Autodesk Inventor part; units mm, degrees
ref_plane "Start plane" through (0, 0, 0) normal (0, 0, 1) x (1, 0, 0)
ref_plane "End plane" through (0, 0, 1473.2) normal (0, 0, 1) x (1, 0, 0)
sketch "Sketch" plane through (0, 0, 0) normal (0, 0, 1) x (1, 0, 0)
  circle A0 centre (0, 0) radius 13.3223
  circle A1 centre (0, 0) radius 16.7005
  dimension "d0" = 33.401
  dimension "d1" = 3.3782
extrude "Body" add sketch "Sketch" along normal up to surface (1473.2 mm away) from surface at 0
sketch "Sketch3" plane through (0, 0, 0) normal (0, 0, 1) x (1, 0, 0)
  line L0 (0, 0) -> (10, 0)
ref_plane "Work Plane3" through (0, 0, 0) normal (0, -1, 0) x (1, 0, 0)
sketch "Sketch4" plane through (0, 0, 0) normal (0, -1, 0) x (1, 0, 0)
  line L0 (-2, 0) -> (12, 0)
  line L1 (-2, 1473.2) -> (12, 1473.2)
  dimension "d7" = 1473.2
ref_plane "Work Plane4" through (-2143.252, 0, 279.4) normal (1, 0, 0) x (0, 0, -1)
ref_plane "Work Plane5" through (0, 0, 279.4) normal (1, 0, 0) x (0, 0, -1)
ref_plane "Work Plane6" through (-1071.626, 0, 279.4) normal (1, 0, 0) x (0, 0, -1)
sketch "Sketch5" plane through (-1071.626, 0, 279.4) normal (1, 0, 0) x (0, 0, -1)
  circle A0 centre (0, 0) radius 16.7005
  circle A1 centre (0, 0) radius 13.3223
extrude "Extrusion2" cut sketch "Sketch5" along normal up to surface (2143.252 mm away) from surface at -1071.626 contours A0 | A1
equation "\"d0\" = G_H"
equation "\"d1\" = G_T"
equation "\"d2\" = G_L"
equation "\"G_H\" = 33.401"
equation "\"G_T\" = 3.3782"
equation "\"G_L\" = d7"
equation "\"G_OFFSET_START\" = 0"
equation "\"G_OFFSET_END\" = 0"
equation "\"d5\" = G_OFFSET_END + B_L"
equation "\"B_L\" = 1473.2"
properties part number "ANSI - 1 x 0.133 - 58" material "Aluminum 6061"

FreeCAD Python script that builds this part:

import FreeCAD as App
import Part
import Sketcher

V = App.Vector
Q = App.Units.Quantity

doc = App.newDocument("Part")
body = doc.addObject("PartDesign::Body", "Body")

# Sketch on XY plane
sketch1 = doc.addObject("Sketcher::SketchObject", "Sketch")
body.addObject(sketch1)
sketch1.AttachmentSupport = (doc.XY_Plane, [""])
sketch1.MapMode = "FlatFace"
sketch1.addGeometry([
    Part.Circle(V(0, 0, 0), V(0, 0, 1), 17),
    Part.Circle(V(0, 0, 0), V(0, 0, 1), 13),
], False)
sketch1.addConstraint([
    Sketcher.Constraint("Coincident", 0, 3, -1, 1),
    Sketcher.Constraint("Coincident", 1, 3, -1, 1),
    Sketcher.Constraint("Diameter", 0, Q("1.315 in")),
    Sketcher.Constraint("Diameter", 1, Q("1.049 in")),
])
pad1 = doc.addObject("PartDesign::Pad", "Pad")
body.addObject(pad1)
pad1.Profile = sketch1
pad1.Length = Q("58 in")

# Sketch on YZ plane
sketch2 = doc.addObject("Sketcher::SketchObject", "Sketch001")
body.addObject(sketch2)
sketch2.AttachmentSupport = (doc.YZ_Plane, [""])
sketch2.MapMode = "FlatFace"
sketch2.AttachmentOffset = App.Placement(V(0, 0, -84.38 * 25.4), App.Rotation())
sketch2.addGeometry(Part.Circle(V(0, 279, 0), V(0, 0, 1), 17), False)
sketch2.addConstraint([
    Sketcher.Constraint("PointOnObject", 0, 3, -2),
    Sketcher.Constraint("Diameter", 0, Q("1.315 in")),
    Sketcher.Constraint("DistanceY", -1, 1, 0, 3, Q("11 in")),
])
pocket1 = doc.addObject("PartDesign::Pocket", "Pocket")
body.addObject(pocket1)
pocket1.Profile = sketch2
pocket1.Length = Q("84.38 in")
pocket1.Reversed = True

doc.recompute()
